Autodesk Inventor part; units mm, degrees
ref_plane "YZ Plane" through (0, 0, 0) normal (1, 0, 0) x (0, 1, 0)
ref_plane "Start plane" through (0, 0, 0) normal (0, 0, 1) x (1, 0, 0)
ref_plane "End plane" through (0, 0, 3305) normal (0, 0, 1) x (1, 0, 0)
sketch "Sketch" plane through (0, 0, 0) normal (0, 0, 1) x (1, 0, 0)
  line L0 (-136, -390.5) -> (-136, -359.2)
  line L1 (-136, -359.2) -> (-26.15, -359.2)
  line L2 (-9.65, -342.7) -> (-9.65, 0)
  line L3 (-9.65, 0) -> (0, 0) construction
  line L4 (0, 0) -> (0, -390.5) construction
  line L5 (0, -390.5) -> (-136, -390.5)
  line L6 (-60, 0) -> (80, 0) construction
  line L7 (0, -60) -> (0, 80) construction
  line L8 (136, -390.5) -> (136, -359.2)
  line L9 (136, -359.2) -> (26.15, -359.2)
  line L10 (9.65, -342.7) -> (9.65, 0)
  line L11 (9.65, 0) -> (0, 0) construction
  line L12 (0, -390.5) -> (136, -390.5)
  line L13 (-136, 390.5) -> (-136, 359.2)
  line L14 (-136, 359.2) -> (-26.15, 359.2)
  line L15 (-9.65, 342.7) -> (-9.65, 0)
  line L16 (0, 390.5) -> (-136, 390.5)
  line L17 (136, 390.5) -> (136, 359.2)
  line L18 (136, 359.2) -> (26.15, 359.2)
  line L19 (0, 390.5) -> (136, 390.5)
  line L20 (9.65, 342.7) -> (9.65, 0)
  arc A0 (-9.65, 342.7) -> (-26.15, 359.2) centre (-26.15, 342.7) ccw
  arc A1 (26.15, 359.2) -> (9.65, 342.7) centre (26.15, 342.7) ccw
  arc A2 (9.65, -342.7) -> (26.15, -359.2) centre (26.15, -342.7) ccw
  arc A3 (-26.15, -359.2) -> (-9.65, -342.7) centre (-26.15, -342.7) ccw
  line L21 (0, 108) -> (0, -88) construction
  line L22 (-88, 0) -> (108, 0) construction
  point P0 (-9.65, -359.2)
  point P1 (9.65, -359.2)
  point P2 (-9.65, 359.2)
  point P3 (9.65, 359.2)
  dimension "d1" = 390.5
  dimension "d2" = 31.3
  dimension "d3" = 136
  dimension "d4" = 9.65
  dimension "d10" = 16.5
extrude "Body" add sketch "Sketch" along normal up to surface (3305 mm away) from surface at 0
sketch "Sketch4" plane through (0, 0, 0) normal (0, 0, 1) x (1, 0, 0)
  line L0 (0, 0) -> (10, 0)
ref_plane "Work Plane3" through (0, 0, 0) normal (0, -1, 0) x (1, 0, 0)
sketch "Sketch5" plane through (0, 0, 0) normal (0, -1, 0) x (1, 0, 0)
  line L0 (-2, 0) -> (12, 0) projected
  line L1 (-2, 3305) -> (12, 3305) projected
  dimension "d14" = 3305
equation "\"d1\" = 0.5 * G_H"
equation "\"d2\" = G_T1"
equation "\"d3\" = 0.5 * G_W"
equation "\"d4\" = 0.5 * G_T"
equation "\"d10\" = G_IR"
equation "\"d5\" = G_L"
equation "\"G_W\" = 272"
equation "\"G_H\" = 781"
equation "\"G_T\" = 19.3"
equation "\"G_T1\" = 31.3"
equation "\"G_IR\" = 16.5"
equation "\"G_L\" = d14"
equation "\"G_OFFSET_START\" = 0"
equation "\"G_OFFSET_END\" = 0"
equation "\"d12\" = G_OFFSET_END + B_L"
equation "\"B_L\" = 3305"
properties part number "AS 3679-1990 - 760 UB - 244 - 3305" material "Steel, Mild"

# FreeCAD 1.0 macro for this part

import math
import FreeCAD as App
import Part
import Sketcher

doc = App.newDocument("Part")
body = doc.addObject("PartDesign::Body", "Body")

sketch1 = doc.addObject("Sketcher::SketchObject", "Sketch")
body.addObject(sketch1)
sketch1.AttachmentSupport = (doc.XY_Plane, [""])
sketch1.MapMode = "FlatFace"
sketch1.addGeometry([
    Part.LineSegment(App.Vector(-136, -359.2, 0), App.Vector(-136, -390.5, 0)),
    Part.LineSegment(App.Vector(-136, -390.5, 0), App.Vector(136, -390.5, 0)),
    Part.LineSegment(App.Vector(136, -390.5, 0), App.Vector(136, -359.2, 0)),
    Part.LineSegment(App.Vector(136, -359.2, 0), App.Vector(26.15, -359.2, 0)),
    Part.ArcOfCircle(Part.Circle(App.Vector(26.15, -342.7, 0), App.Vector(0, 0, 1), 16.5), math.radians(180), math.radians(270)),
    Part.LineSegment(App.Vector(9.65, -342.7, 0), App.Vector(9.65, 342.7, 0)),
    Part.ArcOfCircle(Part.Circle(App.Vector(26.15, 342.7, 0), App.Vector(0, 0, 1), 16.5), math.radians(90), math.radians(180)),
    Part.LineSegment(App.Vector(26.15, 359.2, 0), App.Vector(136, 359.2, 0)),
    Part.LineSegment(App.Vector(136, 359.2, 0), App.Vector(136, 390.5, 0)),
    Part.LineSegment(App.Vector(136, 390.5, 0), App.Vector(-136, 390.5, 0)),
    Part.LineSegment(App.Vector(-136, 390.5, 0), App.Vector(-136, 359.2, 0)),
    Part.LineSegment(App.Vector(-136, 359.2, 0), App.Vector(-26.15, 359.2, 0)),
    Part.ArcOfCircle(Part.Circle(App.Vector(-26.15, 342.7, 0), App.Vector(0, 0, 1), 16.5), math.radians(0), math.radians(90)),
    Part.LineSegment(App.Vector(-9.65, 342.7, 0), App.Vector(-9.65, -342.7, 0)),
    Part.ArcOfCircle(Part.Circle(App.Vector(-26.15, -342.7, 0), App.Vector(0, 0, 1), 16.5), math.radians(-90), math.radians(0)),
    Part.LineSegment(App.Vector(-26.15, -359.2, 0), App.Vector(-136, -359.2, 0)),
], False)
sketch1.addConstraint([
    Sketcher.Constraint("Coincident", 0, 2, 1, 1),
    Sketcher.Constraint("Coincident", 1, 2, 2, 1),
    Sketcher.Constraint("Coincident", 2, 2, 3, 1),
    Sketcher.Constraint("Tangent", 3, 2, 4, 2),
    Sketcher.Constraint("Tangent", 4, 1, 5, 1),
    Sketcher.Constraint("Tangent", 5, 2, 6, 2),
    Sketcher.Constraint("Tangent", 6, 1, 7, 1),
    Sketcher.Constraint("Coincident", 7, 2, 8, 1),
    Sketcher.Constraint("Coincident", 8, 2, 9, 1),
    Sketcher.Constraint("Coincident", 9, 2, 10, 1),
    Sketcher.Constraint("Coincident", 10, 2, 11, 1),
    Sketcher.Constraint("Tangent", 11, 2, 12, 2),
    Sketcher.Constraint("Tangent", 12, 1, 13, 1),
    Sketcher.Constraint("Tangent", 13, 2, 14, 2),
    Sketcher.Constraint("Tangent", 14, 1, 15, 1),
    Sketcher.Constraint("Coincident", 15, 2, 0, 1),
    Sketcher.Constraint("Vertical", 0),
    Sketcher.Constraint("Horizontal", 1),
    Sketcher.Constraint("Vertical", 2),
    Sketcher.Constraint("Horizontal", 3),
    Sketcher.Constraint("Vertical", 5),
    Sketcher.Constraint("Horizontal", 7),
    Sketcher.Constraint("Vertical", 8),
    Sketcher.Constraint("Horizontal", 9),
    Sketcher.Constraint("Vertical", 10),
    Sketcher.Constraint("Horizontal", 11),
    Sketcher.Constraint("Vertical", 13),
    Sketcher.Constraint("Horizontal", 15),
    Sketcher.Constraint("Equal", 4, 6),
    Sketcher.Constraint("Equal", 6, 12),
    Sketcher.Constraint("Equal", 12, 14),
    Sketcher.Constraint("Symmetric", 4, 3, 12, 3, -1, 1),
    Sketcher.Constraint("Symmetric", 0, 2, 8, 2, -1, 1),
    Sketcher.Constraint("Symmetric", 7, 2, 10, 2, -2),
    Sketcher.Constraint("Symmetric", 2, 2, 15, 2, -2),
    Sketcher.Constraint("Radius", 4, 16.5),
    Sketcher.Constraint("DistanceY", 0, 2, 0, 1, 31.3),
    Sketcher.Constraint("DistanceX", 0, 2, -1, 1, 136.0),
    Sketcher.Constraint("DistanceY", 0, 2, -1, 1, 390.5),
    Sketcher.Constraint("DistanceX", -1, 1, 4, 1, 9.65),
])
pad1 = doc.addObject("PartDesign::Pad", "Pad")
body.addObject(pad1)
pad1.Profile = sketch1
pad1.Length = 3305

doc.recompute()
